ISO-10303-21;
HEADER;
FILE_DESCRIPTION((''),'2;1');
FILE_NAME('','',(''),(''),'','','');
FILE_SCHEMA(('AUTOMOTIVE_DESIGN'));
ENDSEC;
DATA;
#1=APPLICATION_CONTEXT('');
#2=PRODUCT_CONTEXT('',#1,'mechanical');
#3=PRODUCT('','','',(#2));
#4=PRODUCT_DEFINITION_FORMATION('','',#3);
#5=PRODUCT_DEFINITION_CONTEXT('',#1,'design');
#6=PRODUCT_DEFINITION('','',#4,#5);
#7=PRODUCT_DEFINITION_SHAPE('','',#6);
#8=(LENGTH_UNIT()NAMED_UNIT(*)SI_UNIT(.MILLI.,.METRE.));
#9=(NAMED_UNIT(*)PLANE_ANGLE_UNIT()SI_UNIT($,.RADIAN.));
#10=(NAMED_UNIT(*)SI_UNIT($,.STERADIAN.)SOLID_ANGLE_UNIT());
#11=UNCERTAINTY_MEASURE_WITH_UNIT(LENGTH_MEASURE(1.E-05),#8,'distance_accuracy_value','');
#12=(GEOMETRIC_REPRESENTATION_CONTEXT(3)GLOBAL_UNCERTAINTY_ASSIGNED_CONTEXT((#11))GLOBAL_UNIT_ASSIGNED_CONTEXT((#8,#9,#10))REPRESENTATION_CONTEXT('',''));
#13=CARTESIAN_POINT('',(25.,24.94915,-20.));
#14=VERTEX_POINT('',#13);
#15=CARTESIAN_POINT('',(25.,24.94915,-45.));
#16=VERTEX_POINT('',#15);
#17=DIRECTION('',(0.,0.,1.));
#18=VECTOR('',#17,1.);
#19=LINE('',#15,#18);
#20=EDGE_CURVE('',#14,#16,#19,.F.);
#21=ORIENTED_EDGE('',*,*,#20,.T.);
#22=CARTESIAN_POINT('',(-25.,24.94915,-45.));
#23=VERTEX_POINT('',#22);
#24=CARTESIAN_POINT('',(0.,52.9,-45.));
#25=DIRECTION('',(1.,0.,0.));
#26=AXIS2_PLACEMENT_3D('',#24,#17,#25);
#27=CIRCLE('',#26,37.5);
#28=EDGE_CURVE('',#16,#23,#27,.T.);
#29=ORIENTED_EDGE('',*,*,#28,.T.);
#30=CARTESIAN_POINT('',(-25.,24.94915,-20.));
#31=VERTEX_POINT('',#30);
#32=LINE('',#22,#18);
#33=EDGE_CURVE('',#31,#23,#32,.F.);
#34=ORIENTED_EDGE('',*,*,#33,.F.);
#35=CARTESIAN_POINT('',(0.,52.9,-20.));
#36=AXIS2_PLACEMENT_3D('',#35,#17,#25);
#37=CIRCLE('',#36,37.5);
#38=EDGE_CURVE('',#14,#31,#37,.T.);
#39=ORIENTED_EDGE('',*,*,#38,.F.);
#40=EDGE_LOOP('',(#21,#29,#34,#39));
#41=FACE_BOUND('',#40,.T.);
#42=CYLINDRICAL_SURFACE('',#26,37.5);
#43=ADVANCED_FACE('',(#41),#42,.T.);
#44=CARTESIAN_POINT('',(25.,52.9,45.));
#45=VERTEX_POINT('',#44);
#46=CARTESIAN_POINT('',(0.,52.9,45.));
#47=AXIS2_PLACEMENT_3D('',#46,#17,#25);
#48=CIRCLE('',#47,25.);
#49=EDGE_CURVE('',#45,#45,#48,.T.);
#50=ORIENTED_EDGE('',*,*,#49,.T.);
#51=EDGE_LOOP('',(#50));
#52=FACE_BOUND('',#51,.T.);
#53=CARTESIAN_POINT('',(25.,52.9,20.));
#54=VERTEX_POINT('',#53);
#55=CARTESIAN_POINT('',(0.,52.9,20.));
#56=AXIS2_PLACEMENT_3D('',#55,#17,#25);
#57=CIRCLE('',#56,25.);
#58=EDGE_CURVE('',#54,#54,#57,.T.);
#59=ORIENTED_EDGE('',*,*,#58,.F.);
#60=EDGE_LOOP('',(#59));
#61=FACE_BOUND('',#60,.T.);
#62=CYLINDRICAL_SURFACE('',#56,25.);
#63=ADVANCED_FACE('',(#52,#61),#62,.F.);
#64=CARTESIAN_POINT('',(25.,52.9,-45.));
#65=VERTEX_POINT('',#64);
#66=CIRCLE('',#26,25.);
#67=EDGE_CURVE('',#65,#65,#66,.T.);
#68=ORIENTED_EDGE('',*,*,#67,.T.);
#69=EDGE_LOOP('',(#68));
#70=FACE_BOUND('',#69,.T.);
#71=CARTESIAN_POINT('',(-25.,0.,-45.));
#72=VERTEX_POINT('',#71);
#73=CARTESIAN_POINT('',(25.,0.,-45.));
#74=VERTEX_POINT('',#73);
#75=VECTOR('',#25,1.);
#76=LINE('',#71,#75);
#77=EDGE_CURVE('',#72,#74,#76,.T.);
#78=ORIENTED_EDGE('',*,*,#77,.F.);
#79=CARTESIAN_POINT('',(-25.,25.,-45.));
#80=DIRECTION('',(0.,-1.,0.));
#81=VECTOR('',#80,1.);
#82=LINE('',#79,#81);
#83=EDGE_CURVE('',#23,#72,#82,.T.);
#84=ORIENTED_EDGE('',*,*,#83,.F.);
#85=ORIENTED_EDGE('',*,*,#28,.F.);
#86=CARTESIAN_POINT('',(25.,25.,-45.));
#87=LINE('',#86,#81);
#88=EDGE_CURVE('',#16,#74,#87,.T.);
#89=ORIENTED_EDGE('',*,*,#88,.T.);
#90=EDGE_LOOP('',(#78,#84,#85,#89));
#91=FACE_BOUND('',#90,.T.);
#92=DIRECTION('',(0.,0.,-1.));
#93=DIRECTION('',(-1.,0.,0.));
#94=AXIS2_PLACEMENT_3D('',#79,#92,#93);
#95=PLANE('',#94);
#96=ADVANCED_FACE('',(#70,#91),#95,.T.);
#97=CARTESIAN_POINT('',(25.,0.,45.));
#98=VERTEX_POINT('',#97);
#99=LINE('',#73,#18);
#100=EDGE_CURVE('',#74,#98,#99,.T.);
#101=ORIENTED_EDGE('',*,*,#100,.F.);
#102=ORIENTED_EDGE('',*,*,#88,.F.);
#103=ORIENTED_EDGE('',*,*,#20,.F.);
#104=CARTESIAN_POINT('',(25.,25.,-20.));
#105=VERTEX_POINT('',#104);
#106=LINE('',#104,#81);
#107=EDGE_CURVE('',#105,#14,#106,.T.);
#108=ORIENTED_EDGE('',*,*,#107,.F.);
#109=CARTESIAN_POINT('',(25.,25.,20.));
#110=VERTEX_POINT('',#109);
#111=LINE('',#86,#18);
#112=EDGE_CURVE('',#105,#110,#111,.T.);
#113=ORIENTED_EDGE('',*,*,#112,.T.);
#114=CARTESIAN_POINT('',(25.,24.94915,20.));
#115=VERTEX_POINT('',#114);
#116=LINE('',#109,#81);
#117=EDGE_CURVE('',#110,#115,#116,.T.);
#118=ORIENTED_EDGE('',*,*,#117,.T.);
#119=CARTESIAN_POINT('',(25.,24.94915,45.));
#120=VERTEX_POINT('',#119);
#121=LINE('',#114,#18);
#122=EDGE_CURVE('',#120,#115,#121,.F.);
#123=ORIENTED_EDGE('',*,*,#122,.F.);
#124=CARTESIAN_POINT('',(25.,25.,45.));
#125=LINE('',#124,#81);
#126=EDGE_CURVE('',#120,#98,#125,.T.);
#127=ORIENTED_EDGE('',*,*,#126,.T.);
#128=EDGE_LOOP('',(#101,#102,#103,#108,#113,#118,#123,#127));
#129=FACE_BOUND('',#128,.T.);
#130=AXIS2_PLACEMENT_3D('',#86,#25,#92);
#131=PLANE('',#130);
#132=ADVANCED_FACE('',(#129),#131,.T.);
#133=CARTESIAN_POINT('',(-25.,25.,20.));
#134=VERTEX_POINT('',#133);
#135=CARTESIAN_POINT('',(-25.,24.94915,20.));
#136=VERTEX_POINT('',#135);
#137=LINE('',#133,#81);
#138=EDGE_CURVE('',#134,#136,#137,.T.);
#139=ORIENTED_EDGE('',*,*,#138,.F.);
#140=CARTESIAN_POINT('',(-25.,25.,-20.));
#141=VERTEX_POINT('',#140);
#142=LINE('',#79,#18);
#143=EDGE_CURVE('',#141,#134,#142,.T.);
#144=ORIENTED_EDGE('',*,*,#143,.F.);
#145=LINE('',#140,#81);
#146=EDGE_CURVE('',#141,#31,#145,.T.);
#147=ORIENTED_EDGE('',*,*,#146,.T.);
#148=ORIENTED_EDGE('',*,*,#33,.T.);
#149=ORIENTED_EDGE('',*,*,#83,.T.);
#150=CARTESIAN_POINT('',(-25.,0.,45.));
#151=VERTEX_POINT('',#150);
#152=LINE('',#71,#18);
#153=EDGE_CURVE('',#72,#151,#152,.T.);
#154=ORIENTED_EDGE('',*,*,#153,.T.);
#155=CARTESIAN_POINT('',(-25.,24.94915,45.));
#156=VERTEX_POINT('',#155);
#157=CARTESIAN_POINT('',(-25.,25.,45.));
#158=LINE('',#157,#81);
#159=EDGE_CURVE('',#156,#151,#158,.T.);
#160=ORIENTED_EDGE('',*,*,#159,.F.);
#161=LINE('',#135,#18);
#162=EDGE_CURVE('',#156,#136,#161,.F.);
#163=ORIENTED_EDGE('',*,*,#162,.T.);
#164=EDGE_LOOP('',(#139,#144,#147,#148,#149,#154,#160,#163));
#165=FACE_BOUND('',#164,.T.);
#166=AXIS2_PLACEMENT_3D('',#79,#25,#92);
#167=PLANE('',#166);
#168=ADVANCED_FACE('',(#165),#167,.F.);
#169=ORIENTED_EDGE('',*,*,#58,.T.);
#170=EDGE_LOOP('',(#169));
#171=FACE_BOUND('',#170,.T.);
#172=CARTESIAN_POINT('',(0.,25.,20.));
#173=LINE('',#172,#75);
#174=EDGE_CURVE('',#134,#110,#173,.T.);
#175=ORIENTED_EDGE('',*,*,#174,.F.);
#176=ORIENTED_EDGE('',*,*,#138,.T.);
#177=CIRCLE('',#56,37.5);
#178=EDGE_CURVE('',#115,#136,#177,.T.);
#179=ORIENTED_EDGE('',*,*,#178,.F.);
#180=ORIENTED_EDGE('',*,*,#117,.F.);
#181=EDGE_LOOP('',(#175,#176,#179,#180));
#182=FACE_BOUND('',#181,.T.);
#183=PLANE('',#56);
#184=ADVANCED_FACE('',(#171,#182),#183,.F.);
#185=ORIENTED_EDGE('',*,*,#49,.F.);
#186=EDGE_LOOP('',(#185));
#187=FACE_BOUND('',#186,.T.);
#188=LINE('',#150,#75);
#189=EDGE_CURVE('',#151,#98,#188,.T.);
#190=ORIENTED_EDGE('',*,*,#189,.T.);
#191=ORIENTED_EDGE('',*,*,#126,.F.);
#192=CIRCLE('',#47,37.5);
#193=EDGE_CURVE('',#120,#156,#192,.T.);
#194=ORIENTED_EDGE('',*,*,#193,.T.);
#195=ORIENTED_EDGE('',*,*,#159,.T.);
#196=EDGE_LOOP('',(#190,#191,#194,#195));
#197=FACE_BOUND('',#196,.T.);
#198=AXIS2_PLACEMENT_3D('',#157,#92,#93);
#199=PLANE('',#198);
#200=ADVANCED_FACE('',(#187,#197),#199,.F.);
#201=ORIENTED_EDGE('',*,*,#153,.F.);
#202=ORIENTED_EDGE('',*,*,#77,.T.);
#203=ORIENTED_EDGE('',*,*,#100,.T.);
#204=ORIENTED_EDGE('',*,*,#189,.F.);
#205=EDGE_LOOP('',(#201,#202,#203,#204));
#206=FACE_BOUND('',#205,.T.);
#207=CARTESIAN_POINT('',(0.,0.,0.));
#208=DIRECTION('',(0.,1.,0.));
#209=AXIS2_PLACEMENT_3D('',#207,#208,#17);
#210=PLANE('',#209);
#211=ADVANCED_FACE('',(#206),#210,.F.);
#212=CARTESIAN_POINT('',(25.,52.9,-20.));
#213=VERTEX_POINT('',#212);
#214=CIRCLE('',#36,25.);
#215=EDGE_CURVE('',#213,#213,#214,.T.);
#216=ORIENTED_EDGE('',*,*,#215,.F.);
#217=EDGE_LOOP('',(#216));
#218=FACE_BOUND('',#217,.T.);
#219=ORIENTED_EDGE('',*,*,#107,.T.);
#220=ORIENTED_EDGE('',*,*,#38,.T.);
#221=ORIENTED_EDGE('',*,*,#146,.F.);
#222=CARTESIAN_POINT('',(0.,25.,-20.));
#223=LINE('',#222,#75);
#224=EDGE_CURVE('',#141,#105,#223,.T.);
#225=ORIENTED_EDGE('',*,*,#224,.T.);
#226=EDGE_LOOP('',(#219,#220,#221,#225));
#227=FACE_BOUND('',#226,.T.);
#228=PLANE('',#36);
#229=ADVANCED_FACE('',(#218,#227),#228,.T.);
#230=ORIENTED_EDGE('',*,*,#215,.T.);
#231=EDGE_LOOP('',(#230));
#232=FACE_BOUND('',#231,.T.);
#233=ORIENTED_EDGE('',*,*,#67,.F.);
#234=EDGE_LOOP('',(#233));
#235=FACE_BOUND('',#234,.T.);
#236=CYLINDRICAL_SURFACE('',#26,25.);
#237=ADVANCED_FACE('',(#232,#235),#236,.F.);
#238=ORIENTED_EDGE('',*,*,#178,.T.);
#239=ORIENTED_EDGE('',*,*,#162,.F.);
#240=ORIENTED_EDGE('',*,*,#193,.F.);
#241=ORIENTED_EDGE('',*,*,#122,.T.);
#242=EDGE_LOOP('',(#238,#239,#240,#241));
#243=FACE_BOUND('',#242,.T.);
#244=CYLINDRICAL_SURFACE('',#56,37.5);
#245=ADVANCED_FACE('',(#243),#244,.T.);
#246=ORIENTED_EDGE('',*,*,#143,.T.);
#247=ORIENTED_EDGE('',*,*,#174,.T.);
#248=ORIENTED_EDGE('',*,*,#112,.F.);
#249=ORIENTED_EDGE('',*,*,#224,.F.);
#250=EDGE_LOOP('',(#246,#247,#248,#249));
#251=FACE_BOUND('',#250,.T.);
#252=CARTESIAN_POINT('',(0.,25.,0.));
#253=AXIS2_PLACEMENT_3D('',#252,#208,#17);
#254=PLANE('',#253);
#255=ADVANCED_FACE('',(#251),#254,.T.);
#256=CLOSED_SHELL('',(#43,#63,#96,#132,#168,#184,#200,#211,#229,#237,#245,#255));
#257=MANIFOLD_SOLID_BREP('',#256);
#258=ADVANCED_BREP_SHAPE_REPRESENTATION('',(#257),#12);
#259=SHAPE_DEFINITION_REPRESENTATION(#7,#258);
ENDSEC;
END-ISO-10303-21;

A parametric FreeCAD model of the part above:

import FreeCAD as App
import Part
import Sketcher
from FreeCAD import Vector


def add_polygon(sketch, points):
    """Adds a closed chain of lines whose ends are joined by coincident constraints."""
    first, n = sketch.GeometryCount, len(points)
    for a, b in zip(points, points[1:] + points[:1]):
        sketch.addGeometry(Part.LineSegment(App.Vector(*a, 0), App.Vector(*b, 0)), False)
    for i in range(n):
        sketch.addConstraint(Sketcher.Constraint("Coincident", first + i, 2, first + (i + 1) % n, 1))

doc = App.newDocument("Part")
params = doc.addObject("Spreadsheet::Sheet", "Params")
for row, (alias, value) in enumerate([
    ("sketch1_width", "50 mm"),
    ("sketch1_height", "90 mm"),
    ("pad1_length", "25 mm"),
    ("sketch2_diameter", "75 mm"),
    ("pad2_length", "25 mm"),
    ("sketch3_diameter", "50 mm"),
    ("pocket1_length", "25 mm"),
    ("linearpattern_pitch", "65 mm"),
], start=1):
    params.set(f"A{row}", alias)
    params.set(f"B{row}", "=" + value)
    params.setAlias(f"B{row}", alias)

body = doc.addObject("PartDesign::Body", "Body")

# Sketch on XZ plane
sketch1 = doc.addObject("Sketcher::SketchObject", "Sketch")
body.addObject(sketch1)
sketch1.AttachmentSupport = (doc.XZ_Plane, [""])
sketch1.MapMode = "FlatFace"
add_polygon(sketch1, [(-25, -45), (-25, 45), (25, 45), (25, -45)])  # lines 0-3
sketch1.addConstraint(Sketcher.Constraint("Vertical", 0))
sketch1.addConstraint(Sketcher.Constraint("Horizontal", 1))
sketch1.addConstraint(Sketcher.Constraint("Vertical", 2))
sketch1.addConstraint(Sketcher.Constraint("Horizontal", 3))
sketch1.addConstraint(Sketcher.Constraint("Symmetric", 0, 2, 2, 2, -1, 1))
sketch1.addConstraint(Sketcher.Constraint("DistanceX", 1, 1, 1, 2, 50.0))
sketch1.addConstraint(Sketcher.Constraint("DistanceY", 0, 1, 0, 2, 90.0))
sketch1.setExpression("Constraints[9]", "Params.sketch1_width")
sketch1.setExpression("Constraints[10]", "Params.sketch1_height")
pad1 = doc.addObject("PartDesign::Pad", "Pad")
body.addObject(pad1)
pad1.Profile = sketch1
pad1.setExpression("Length", "Params.pad1_length")
pad1.Reversed = True

# Sketch on XY plane
sketch2 = doc.addObject("Sketcher::SketchObject", "Sketch001")
body.addObject(sketch2)
sketch2.AttachmentSupport = (doc.XY_Plane, [""])
sketch2.MapMode = "FlatFace"
sketch2.AttachmentOffset = App.Placement(Vector(0, 0, 45), App.Rotation())
sketch2.addGeometry(Part.Circle(Vector(0, 53, 0), Vector(0, 0, 1), 38), False)
sketch2.addConstraint(Sketcher.Constraint("PointOnObject", 0, 3, -2))
sketch2.addConstraint(Sketcher.Constraint("Diameter", 0, 75.0))
sketch2.addConstraint(Sketcher.Constraint("DistanceY", -1, 1, 0, 3, 52.9))
sketch2.setExpression("Constraints[1]", "Params.sketch2_diameter")
pad2 = doc.addObject("PartDesign::Pad", "Pad001")
body.addObject(pad2)
pad2.Profile = sketch2
pad2.setExpression("Length", "Params.pad2_length")
pad2.Reversed = True

# Sketch on XY plane
sketch3 = doc.addObject("Sketcher::SketchObject", "Sketch002")
body.addObject(sketch3)
sketch3.AttachmentSupport = (doc.XY_Plane, [""])
sketch3.MapMode = "FlatFace"
sketch3.AttachmentOffset = App.Placement(Vector(0, 0, 45), App.Rotation())
sketch3.addGeometry(Part.Circle(Vector(0, 53, 0), Vector(0, 0, 1), 25), False)
sketch3.addConstraint(Sketcher.Constraint("PointOnObject", 0, 3, -2))
sketch3.addConstraint(Sketcher.Constraint("Diameter", 0, 50.0))
sketch3.addConstraint(Sketcher.Constraint("DistanceY", -1, 1, 0, 3, 52.9))
sketch3.setExpression("Constraints[1]", "Params.sketch3_diameter")
pocket1 = doc.addObject("PartDesign::Pocket", "Pocket")
body.addObject(pocket1)
pocket1.Profile = sketch3
pocket1.setExpression("Length", "Params.pocket1_length")
doc.recompute()

linearpattern = doc.addObject("PartDesign::LinearPattern", "LinearPattern")
body.addObject(linearpattern)
linearpattern.Originals = [pad2, pocket1]
linearpattern.Direction = (doc.Z_Axis, [""])
linearpattern.Mode = "offset"
linearpattern.setExpression("Offset", "Params.linearpattern_pitch")
linearpattern.Occurrences = 2
linearpattern.Reversed = True
body.Tip = linearpattern

doc.recompute()
